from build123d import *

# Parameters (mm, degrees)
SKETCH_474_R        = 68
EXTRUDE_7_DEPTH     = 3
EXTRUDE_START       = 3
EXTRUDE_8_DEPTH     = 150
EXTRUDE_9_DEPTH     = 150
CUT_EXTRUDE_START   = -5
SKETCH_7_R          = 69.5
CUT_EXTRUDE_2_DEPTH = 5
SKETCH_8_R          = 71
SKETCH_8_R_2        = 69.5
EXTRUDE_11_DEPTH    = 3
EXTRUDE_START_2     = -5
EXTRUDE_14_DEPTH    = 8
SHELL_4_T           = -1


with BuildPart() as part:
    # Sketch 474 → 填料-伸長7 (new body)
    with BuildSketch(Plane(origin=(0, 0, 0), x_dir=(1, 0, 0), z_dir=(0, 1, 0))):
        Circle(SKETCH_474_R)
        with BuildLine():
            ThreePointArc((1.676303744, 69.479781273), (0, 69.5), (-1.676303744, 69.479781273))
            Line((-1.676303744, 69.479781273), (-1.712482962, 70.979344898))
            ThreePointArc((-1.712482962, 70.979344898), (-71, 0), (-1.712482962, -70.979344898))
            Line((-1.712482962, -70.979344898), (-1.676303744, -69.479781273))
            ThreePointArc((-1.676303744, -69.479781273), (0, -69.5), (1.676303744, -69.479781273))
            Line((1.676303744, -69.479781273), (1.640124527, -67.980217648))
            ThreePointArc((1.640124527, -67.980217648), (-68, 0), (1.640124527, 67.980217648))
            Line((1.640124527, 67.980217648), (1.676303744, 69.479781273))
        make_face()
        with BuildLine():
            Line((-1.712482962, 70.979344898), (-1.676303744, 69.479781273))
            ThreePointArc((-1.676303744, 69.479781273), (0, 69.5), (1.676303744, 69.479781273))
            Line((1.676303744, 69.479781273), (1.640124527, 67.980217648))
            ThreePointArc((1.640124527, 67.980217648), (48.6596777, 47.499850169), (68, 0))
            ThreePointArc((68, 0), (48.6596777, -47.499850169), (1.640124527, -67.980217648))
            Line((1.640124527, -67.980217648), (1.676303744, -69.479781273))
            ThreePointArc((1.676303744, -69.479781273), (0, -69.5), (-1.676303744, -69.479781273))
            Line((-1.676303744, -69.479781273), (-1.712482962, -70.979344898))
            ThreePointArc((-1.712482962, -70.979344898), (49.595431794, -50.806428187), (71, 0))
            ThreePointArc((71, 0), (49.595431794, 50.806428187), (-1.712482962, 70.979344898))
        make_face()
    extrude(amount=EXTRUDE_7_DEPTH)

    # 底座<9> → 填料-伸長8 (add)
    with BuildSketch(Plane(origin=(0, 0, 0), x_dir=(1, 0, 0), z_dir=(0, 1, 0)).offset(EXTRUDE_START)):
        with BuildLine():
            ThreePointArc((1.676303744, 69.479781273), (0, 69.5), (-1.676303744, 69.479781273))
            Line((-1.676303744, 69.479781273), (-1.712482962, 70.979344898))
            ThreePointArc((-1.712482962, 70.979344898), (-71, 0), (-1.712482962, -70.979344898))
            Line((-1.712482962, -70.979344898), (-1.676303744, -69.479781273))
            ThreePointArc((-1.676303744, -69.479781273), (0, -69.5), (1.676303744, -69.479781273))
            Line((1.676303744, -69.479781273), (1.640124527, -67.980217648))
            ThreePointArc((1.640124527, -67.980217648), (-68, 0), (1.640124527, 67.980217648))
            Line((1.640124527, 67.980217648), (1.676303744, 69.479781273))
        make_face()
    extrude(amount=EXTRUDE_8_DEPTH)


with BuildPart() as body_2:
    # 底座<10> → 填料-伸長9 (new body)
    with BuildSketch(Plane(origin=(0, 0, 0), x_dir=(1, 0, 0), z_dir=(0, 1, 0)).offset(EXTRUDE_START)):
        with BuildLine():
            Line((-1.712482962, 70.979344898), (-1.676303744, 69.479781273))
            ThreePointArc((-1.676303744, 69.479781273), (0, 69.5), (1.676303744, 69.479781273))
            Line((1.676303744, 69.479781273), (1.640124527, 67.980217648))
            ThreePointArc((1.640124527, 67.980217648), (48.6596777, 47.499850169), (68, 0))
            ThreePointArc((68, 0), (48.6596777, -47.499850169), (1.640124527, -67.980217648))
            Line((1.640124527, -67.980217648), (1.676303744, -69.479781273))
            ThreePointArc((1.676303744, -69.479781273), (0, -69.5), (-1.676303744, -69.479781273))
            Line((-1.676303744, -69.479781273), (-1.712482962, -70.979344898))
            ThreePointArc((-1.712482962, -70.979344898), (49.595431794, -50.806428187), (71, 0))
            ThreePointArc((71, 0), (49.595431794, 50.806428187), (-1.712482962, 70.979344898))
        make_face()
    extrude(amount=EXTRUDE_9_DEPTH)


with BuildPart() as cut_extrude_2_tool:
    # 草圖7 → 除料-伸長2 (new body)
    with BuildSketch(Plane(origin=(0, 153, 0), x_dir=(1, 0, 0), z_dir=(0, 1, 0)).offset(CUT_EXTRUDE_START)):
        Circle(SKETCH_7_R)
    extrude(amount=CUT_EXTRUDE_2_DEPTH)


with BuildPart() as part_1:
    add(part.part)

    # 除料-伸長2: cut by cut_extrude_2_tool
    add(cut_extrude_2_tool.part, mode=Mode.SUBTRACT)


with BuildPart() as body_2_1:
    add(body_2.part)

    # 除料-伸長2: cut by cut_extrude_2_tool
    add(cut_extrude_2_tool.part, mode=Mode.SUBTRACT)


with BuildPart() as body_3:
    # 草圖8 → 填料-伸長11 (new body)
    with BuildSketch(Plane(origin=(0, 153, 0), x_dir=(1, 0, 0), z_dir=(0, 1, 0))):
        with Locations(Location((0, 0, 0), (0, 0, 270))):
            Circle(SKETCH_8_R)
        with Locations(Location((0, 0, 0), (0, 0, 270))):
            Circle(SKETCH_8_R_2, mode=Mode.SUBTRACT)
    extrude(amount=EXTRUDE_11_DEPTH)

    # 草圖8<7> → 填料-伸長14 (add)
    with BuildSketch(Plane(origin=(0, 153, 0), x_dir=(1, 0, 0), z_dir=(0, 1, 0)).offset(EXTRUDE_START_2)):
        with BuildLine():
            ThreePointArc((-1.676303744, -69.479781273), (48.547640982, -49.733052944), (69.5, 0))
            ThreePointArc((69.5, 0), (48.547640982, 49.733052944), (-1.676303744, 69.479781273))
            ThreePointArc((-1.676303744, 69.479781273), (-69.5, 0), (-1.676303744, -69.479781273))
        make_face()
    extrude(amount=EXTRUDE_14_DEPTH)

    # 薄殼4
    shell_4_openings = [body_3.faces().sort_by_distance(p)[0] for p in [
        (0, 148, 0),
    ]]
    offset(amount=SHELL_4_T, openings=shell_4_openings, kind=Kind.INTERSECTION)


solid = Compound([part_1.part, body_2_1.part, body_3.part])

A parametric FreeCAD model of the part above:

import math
import FreeCAD as App
import Part
import Sketcher

V = App.Vector


def faces_at(feature, points):
    """Names of the faces that lie closest to the given points."""
    faces = feature.Shape.Faces
    near = lambda p: min(range(len(faces)), key=lambda i: faces[i].distToShape(Part.Vertex(*p))[0])
    return sorted({f"Face{near(p) + 1}" for p in points})

doc = App.newDocument("Part")
body = doc.addObject("PartDesign::Body", "Body")

sketch1 = body.newObject("Sketcher::SketchObject", "Sketch")
sketch1.AttachmentSupport = (doc.getObject("XZ_Plane"), [""])
sketch1.MapMode = "FlatFace"
sketch1.addGeometry([
    Part.ArcOfCircle(Part.Circle(V(0, 0, 0), V(0, 0, 1), 71), math.radians(91.382078), math.radians(268.617922)),
    Part.ArcOfCircle(Part.Circle(V(0, 0, 0), V(0, 0, 1), 71), math.radians(0), math.radians(91.382078)),
    Part.ArcOfCircle(Part.Circle(V(0, 0, 0), V(0, 0, 1), 71), math.radians(-91.382078), math.radians(0)),
], False)
sketch1.addConstraint([
    Sketcher.Constraint("Tangent", 0, 1, 1, 2),
    Sketcher.Constraint("Tangent", 1, 1, 2, 2),
    Sketcher.Constraint("Tangent", 2, 1, 0, 2),
    Sketcher.Constraint("Coincident", 0, 3, -1, 1),
    Sketcher.Constraint("PointOnObject", 1, 1, -1),
    Sketcher.Constraint("Vertical", 0, 1, 2, 1),
    Sketcher.Constraint("Radius", 0, 71.0),
    Sketcher.Constraint("DistanceY", 2, 1, 0, 1, 141.95869),
])
pad1 = body.newObject("PartDesign::Pad", "Pad")
pad1.Profile = sketch1
pad1.Length = 3
pad1.Reversed = True

sketch2 = body.newObject("Sketcher::SketchObject", "Sketch001")
sketch2.AttachmentSupport = (doc.getObject("XZ_Plane"), [""])
sketch2.MapMode = "FlatFace"
sketch2.AttachmentOffset = App.Placement(V(0, 0, -3), App.Rotation())
sketch2.addGeometry([
    Part.ArcOfCircle(Part.Circle(V(0, 0, 0), V(0, 0, 1), 69.5), math.radians(-91.382078), math.radians(-88.617922)),
    Part.LineSegment(V(-1.676304, -69.479781, 0), V(-1.712483, -70.979345, 0)),
    Part.ArcOfCircle(Part.Circle(V(0, 0, 0), V(0, 0, 1), 71), math.radians(91.382078), math.radians(268.617922)),
    Part.LineSegment(V(-1.712483, 70.979345, 0), V(-1.676304, 69.479781, 0)),
    Part.ArcOfCircle(Part.Circle(V(0, 0, 0), V(0, 0, 1), 69.5), math.radians(88.617922), math.radians(91.382078)),
    Part.LineSegment(V(1.676304, 69.479781, 0), V(1.640125, 67.980218, 0)),
    Part.ArcOfCircle(Part.Circle(V(0, 0, 0), V(0, 0, 1), 68), math.radians(88.617922), math.radians(271.382078)),
    Part.LineSegment(V(1.640125, -67.980218, 0), V(1.676304, -69.479781, 0)),
], False)
sketch2.addConstraint([
    Sketcher.Constraint("Coincident", 0, 1, 1, 1),
    Sketcher.Constraint("Coincident", 1, 2, 2, 2),
    Sketcher.Constraint("Coincident", 2, 1, 3, 1),
    Sketcher.Constraint("Coincident", 3, 2, 4, 2),
    Sketcher.Constraint("Coincident", 4, 1, 5, 1),
    Sketcher.Constraint("Coincident", 5, 2, 6, 1),
    Sketcher.Constraint("Coincident", 6, 2, 7, 1),
    Sketcher.Constraint("Coincident", 7, 2, 0, 2),
    Sketcher.Constraint("Coincident", 0, 3, -1, 1),
    Sketcher.Constraint("Coincident", 2, 3, -1, 1),
    Sketcher.Constraint("Coincident", 4, 3, -1, 1),
    Sketcher.Constraint("Coincident", 6, 3, -1, 1),
    Sketcher.Constraint("Equal", 0, 4),
    Sketcher.Constraint("Parallel", 1, 5),
    Sketcher.Constraint("Parallel", 3, 7),
    Sketcher.Constraint("Horizontal", 3, 2, 4, 1),
    Sketcher.Constraint("Horizontal", 0, 1, 7, 2),
    Sketcher.Constraint("Vertical", 1, 2, 2, 1),
    Sketcher.Constraint("Vertical", 0, 1, 3, 2),
    Sketcher.Constraint("Equal", 3, 5),
    Sketcher.Constraint("Radius", 2, 71.0),
    Sketcher.Constraint("Radius", 6, 68.0),
    Sketcher.Constraint("DistanceY", 0, 1, -1, 1, 69.479781),
    Sketcher.Constraint("DistanceX", 1, 2, 0, 1, 0.036179),
])
pad2 = body.newObject("PartDesign::Pad", "Pad001")
pad2.Profile = sketch2
pad2.Length = 150
pad2.Reversed = True
body2 = doc.addObject("PartDesign::Body", "Body001")

sketch3 = body2.newObject("Sketcher::SketchObject", "Sketch002")
sketch3.AttachmentSupport = (doc.getObject("XZ_Plane001"), [""])
sketch3.MapMode = "FlatFace"
sketch3.AttachmentOffset = App.Placement(V(0, 0, -3), App.Rotation())
sketch3.addGeometry([
    Part.LineSegment(V(-1.712483, -70.979345, 0), V(-1.676304, -69.479781, 0)),
    Part.ArcOfCircle(Part.Circle(V(0, 0, 0), V(0, 0, 1), 69.5), math.radians(-91.382078), math.radians(-88.617922)),
    Part.LineSegment(V(1.676304, -69.479781, 0), V(1.640125, -67.980218, 0)),
    Part.ArcOfCircle(Part.Circle(V(0, 0, 0), V(0, 0, 1), 68), math.radians(-88.617922), math.radians(0)),
    Part.ArcOfCircle(Part.Circle(V(0, 0, 0), V(0, 0, 1), 68), math.radians(0), math.radians(88.617922)),
    Part.LineSegment(V(1.640125, 67.980218, 0), V(1.676304, 69.479781, 0)),
    Part.ArcOfCircle(Part.Circle(V(0, 0, 0), V(0, 0, 1), 69.5), math.radians(88.617922), math.radians(91.382078)),
    Part.LineSegment(V(-1.676304, 69.479781, 0), V(-1.712483, 70.979345, 0)),
    Part.ArcOfCircle(Part.Circle(V(0, 0, 0), V(0, 0, 1), 71), math.radians(0), math.radians(91.382078)),
    Part.ArcOfCircle(Part.Circle(V(0, 0, 0), V(0, 0, 1), 71), math.radians(-91.382078), math.radians(0)),
], False)
sketch3.addConstraint([
    Sketcher.Constraint("Coincident", 0, 2, 1, 1),
    Sketcher.Constraint("Coincident", 1, 2, 2, 1),
    Sketcher.Constraint("Coincident", 2, 2, 3, 1),
    Sketcher.Constraint("Tangent", 3, 2, 4, 1),
    Sketcher.Constraint("Coincident", 4, 2, 5, 1),
    Sketcher.Constraint("Coincident", 5, 2, 6, 1),
    Sketcher.Constraint("Coincident", 6, 2, 7, 1),
    Sketcher.Constraint("Coincident", 7, 2, 8, 2),
    Sketcher.Constraint("Tangent", 8, 1, 9, 2),
    Sketcher.Constraint("Coincident", 9, 1, 0, 1),
    Sketcher.Constraint("Coincident", 1, 3, -1, 1),
    Sketcher.Constraint("Coincident", 3, 3, -1, 1),
    Sketcher.Constraint("Coincident", 6, 3, -1, 1),
    Sketcher.Constraint("Coincident", 8, 3, -1, 1),
    Sketcher.Constraint("Equal", 3, 4),
    Sketcher.Constraint("Equal", 1, 6),
    Sketcher.Constraint("Equal", 8, 9),
    Sketcher.Constraint("PointOnObject", 3, 2, -1),
    Sketcher.Constraint("PointOnObject", 8, 1, -1),
    Sketcher.Constraint("Parallel", 0, 5),
    Sketcher.Constraint("Parallel", 2, 7),
    Sketcher.Constraint("Horizontal", 0, 2, 1, 2),
    Sketcher.Constraint("Horizontal", 5, 2, 6, 2),
    Sketcher.Constraint("Vertical", 2, 2, 4, 2),
    Sketcher.Constraint("Vertical", 1, 2, 5, 2),
    Sketcher.Constraint("Equal", 0, 2),
    Sketcher.Constraint("Radius", 3, 68.0),
    Sketcher.Constraint("Radius", 8, 71.0),
    Sketcher.Constraint("DistanceY", 0, 2, -1, 1, 69.479781),
    Sketcher.Constraint("DistanceX", 2, 2, 1, 2, 0.036179),
])
pad3 = body2.newObject("PartDesign::Pad", "Pad002")
pad3.Profile = sketch3
pad3.Length = 150
pad3.Reversed = True
body3 = doc.addObject("PartDesign::Body", "Body002")

sketch4 = body3.newObject("Sketcher::SketchObject", "Sketch003")
sketch4.AttachmentSupport = (doc.getObject("XZ_Plane002"), [""])
sketch4.MapMode = "FlatFace"
sketch4.AttachmentOffset = App.Placement(V(0, 0, -148), App.Rotation())
sketch4.addGeometry(Part.Circle(V(0, 0, 0), V(0, 0, 1), 69.5), False)
sketch4.addConstraint([
    Sketcher.Constraint("Coincident", 0, 3, -1, 1),
    Sketcher.Constraint("Diameter", 0, 139.0),
])
pad4 = body3.newObject("PartDesign::Pad", "Pad003")
pad4.Profile = sketch4
pad4.Length = 5
pad4.Reversed = True
doc.recompute()

body4 = doc.addObject("PartDesign::Body", "Body003")
body4.BaseFeature = body3
boolean = body.newObject("PartDesign::Boolean", "Boolean")
boolean.Type = "Cut"
boolean.addObjects([body4])
doc.recompute()

boolean2 = body2.newObject("PartDesign::Boolean", "Boolean001")
boolean2.Type = "Cut"
boolean2.addObjects([body3])
body5 = doc.addObject("PartDesign::Body", "Body004")

sketch5 = body5.newObject("Sketcher::SketchObject", "Sketch004")
sketch5.AttachmentSupport = (doc.getObject("XZ_Plane004"), [""])
sketch5.MapMode = "FlatFace"
sketch5.AttachmentOffset = App.Placement(V(0, 0, -153), App.Rotation())
sketch5.addGeometry([
    Part.Circle(V(0, 0, 0), V(0, 0, 1), 71),
    Part.Circle(V(0, 0, 0), V(0, 0, 1), 69.5),
], False)
sketch5.addConstraint([
    Sketcher.Constraint("Coincident", 0, 3, -1, 1),
    Sketcher.Constraint("Coincident", 1, 3, -1, 1),
    Sketcher.Constraint("Diameter", 0, 142.0),
    Sketcher.Constraint("Diameter", 1, 139.0),
])
pad5 = body5.newObject("PartDesign::Pad", "Pad004")
pad5.Profile = sketch5
pad5.Length = 3
pad5.Reversed = True

sketch6 = body5.newObject("Sketcher::SketchObject", "Sketch005")
sketch6.AttachmentSupport = (doc.getObject("XZ_Plane004"), [""])
sketch6.MapMode = "FlatFace"
sketch6.AttachmentOffset = App.Placement(V(0, 0, -148), App.Rotation())
sketch6.addGeometry([
    Part.ArcOfCircle(Part.Circle(V(0, 0, 0), V(0, 0, 1), 69.5), math.radians(0), math.radians(91.382078)),
    Part.ArcOfCircle(Part.Circle(V(0, 0, 0), V(0, 0, 1), 69.5), math.radians(-91.382078), math.radians(0)),
    Part.ArcOfCircle(Part.Circle(V(0, 0, 0), V(0, 0, 1), 69.5), math.radians(91.382078), math.radians(268.617922)),
], False)
sketch6.addConstraint([
    Sketcher.Constraint("Tangent", 0, 1, 1, 2),
    Sketcher.Constraint("Tangent", 1, 1, 2, 2),
    Sketcher.Constraint("Tangent", 2, 1, 0, 2),
    Sketcher.Constraint("Coincident", 0, 3, -1, 1),
    Sketcher.Constraint("PointOnObject", 0, 1, -1),
    Sketcher.Constraint("Vertical", 1, 1, 2, 1),
    Sketcher.Constraint("Radius", 0, 69.5),
    Sketcher.Constraint("DistanceY", 1, 1, -1, 1, 69.479781),
])
pad6 = body5.newObject("PartDesign::Pad", "Pad005")
pad6.Profile = sketch6
pad6.Length = 8
pad6.Reversed = True
doc.recompute()

thickness = body5.newObject("PartDesign::Thickness", "Thickness")
thickness.Base = (pad6, faces_at(pad6, [(0, 148, 0)]))
thickness.Value = 1
thickness.Reversed = True
thickness.Join = "Intersection"

doc.recompute()
